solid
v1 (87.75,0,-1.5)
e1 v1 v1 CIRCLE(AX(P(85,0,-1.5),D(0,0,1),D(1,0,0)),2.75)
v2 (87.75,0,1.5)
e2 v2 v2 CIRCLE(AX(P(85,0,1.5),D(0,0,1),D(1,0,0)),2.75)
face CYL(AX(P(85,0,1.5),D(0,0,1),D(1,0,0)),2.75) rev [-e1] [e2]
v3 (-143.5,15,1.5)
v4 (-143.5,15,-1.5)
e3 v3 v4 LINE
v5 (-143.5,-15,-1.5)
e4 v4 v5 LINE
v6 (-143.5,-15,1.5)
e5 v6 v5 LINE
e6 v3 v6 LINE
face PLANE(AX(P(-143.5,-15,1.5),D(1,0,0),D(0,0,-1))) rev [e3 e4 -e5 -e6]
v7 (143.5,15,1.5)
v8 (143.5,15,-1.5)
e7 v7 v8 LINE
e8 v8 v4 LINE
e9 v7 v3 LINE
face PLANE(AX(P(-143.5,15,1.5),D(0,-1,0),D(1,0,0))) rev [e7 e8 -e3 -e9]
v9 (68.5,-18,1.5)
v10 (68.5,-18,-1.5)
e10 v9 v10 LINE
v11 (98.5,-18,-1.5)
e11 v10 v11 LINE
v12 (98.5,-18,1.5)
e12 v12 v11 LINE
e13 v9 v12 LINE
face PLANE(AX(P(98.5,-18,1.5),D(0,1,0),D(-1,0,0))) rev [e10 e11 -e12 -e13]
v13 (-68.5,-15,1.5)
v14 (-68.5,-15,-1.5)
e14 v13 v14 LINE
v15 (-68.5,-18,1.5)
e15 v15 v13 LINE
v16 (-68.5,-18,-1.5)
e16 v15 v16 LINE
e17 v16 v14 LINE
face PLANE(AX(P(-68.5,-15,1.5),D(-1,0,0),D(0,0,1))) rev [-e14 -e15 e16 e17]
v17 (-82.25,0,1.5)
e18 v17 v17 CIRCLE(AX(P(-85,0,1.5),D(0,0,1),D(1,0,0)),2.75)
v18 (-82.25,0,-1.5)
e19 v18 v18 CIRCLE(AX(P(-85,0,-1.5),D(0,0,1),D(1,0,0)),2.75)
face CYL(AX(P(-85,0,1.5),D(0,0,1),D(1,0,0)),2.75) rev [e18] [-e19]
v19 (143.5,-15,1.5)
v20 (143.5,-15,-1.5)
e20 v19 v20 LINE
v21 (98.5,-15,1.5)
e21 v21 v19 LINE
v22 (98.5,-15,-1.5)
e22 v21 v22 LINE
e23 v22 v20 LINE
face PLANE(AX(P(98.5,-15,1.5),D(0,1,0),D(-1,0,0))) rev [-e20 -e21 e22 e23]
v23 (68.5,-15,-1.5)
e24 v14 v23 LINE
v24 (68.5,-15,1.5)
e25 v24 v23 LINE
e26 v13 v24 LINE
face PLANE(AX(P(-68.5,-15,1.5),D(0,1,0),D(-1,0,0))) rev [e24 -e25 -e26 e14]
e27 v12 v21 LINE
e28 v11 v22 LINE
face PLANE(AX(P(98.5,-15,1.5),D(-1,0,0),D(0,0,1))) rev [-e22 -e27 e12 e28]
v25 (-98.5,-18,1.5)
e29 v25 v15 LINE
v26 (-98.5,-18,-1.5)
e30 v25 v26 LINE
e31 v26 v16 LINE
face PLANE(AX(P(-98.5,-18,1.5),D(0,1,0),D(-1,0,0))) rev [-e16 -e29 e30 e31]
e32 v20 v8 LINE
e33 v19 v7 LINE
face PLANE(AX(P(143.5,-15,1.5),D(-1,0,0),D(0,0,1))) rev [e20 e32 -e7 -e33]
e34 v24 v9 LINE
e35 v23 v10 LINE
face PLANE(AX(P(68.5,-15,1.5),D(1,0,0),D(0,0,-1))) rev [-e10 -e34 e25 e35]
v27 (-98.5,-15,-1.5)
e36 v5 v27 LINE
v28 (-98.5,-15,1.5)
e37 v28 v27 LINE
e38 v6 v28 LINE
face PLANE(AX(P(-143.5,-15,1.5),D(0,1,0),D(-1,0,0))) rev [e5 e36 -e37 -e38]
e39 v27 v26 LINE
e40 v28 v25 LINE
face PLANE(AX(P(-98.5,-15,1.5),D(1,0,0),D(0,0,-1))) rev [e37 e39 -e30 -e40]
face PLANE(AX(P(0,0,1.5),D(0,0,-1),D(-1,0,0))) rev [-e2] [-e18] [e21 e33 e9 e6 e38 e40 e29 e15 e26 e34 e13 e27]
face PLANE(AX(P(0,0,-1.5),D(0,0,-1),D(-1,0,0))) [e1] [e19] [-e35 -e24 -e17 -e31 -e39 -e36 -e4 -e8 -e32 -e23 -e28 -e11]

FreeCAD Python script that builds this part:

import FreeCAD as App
import Part
import Sketcher
from FreeCAD import Vector
Q = App.Units.Quantity

doc = App.newDocument("Part")
body = doc.addObject("PartDesign::Body", "Body")

# Sketch on XY plane
sketch1 = doc.addObject("Sketcher::SketchObject", "Sketch")
body.addObject(sketch1)
sketch1.AttachmentSupport = (doc.XY_Plane, [""])
sketch1.MapMode = "FlatFace"
sketch1.addGeometry([
    Part.LineSegment(Vector(-143.5, -15, 0), Vector(-98.5, -15, 0)),  # 0
    Part.LineSegment(Vector(-98.5, -15, 0), Vector(-98.5, -18, 0)),  # 1
    Part.LineSegment(Vector(-98.5, -18, 0), Vector(-68.5, -18, 0)),  # 2
    Part.LineSegment(Vector(-68.5, -18, 0), Vector(-68.5, -15, 0)),  # 3
    Part.LineSegment(Vector(-68.5, -15, 0), Vector(68.5, -15, 0)),  # 4
    Part.LineSegment(Vector(68.5, -15, 0), Vector(68.5, -18, 0)),  # 5
    Part.LineSegment(Vector(68.5, -18, 0), Vector(98.5, -18, 0)),  # 6
    Part.LineSegment(Vector(98.5, -18, 0), Vector(98.5, -15, 0)),  # 7
    Part.LineSegment(Vector(98.5, -15, 0), Vector(143.5, -15, 0)),  # 8
    Part.LineSegment(Vector(143.5, -15, 0), Vector(143.5, 15, 0)),  # 9
    Part.LineSegment(Vector(143.5, 15, 0), Vector(-143.5, 15, 0)),  # 10
    Part.LineSegment(Vector(-143.5, 15, 0), Vector(-143.5, -15, 0)),  # 11
], False)
sketch1.addConstraint([
    Sketcher.Constraint("Coincident", 0, 2, 1, 1),
    Sketcher.Constraint("Coincident", 1, 2, 2, 1),
    Sketcher.Constraint("Coincident", 2, 2, 3, 1),
    Sketcher.Constraint("Coincident", 3, 2, 4, 1),
    Sketcher.Constraint("Coincident", 4, 2, 5, 1),
    Sketcher.Constraint("Coincident", 5, 2, 6, 1),
    Sketcher.Constraint("Coincident", 6, 2, 7, 1),
    Sketcher.Constraint("Coincident", 7, 2, 8, 1),
    Sketcher.Constraint("Coincident", 8, 2, 9, 1),
    Sketcher.Constraint("Coincident", 9, 2, 10, 1),
    Sketcher.Constraint("Coincident", 10, 2, 11, 1),
    Sketcher.Constraint("Coincident", 11, 2, 0, 1),
    Sketcher.Constraint("Horizontal", 0),
    Sketcher.Constraint("Vertical", 1),
    Sketcher.Constraint("Horizontal", 2),
    Sketcher.Constraint("Vertical", 3),
    Sketcher.Constraint("Horizontal", 4),
    Sketcher.Constraint("Vertical", 5),
    Sketcher.Constraint("Horizontal", 6),
    Sketcher.Constraint("Vertical", 7),
    Sketcher.Constraint("Horizontal", 8),
    Sketcher.Constraint("Vertical", 9),
    Sketcher.Constraint("Horizontal", 10),
    Sketcher.Constraint("Vertical", 11),
    Sketcher.Constraint("Symmetric", 8, 2, 10, 2, -1, 1),
    Sketcher.Constraint("Symmetric", 2, 2, 5, 2, -2),
    Sketcher.Constraint("Symmetric", 0, 2, 7, 2, -2),
    Sketcher.Constraint("Horizontal", 0, 2, 3, 2),
    Sketcher.Constraint("Equal", 6, 9),
    Sketcher.Constraint("DistanceX", 0, 1, 0, 2, Q("45 mm")),
    Sketcher.Constraint("DistanceX", 2, 1, 2, 2, Q("30 mm")),
    Sketcher.Constraint("DistanceX", 4, 1, 4, 2, Q("137 mm")),
    Sketcher.Constraint("DistanceY", 1, 2, 1, 1, Q("3 mm")),
])
pad1 = doc.addObject("PartDesign::Pad", "Pad")
body.addObject(pad1)
pad1.Profile = sketch1
pad1.Length = 3
pad1.Midplane = True

# Sketch on XY plane
sketch2 = doc.addObject("Sketcher::SketchObject", "Sketch001")
body.addObject(sketch2)
sketch2.AttachmentSupport = (doc.XY_Plane, [""])
sketch2.MapMode = "FlatFace"
sketch2.AttachmentOffset = App.Placement(Vector(0, 0, 1.5), App.Rotation())
sketch2.addGeometry([
    Part.Circle(Vector(-85, 0, 0), Vector(0, 0, 1), 2.75),
    Part.Circle(Vector(85, 0, 0), Vector(0, 0, 1), 2.75),
], False)
sketch2.addConstraint([
    Sketcher.Constraint("Equal", 0, 1),
    Sketcher.Constraint("Symmetric", 0, 3, 1, 3, -1, 1),
    Sketcher.Constraint("PointOnObject", 0, 3, -1),
    Sketcher.Constraint("Diameter", 0, Q("5.5 mm")),
    Sketcher.Constraint("DistanceX", 0, 3, -1, 1, Q("85 mm")),
])
doc.recompute()
hole = doc.addObject("PartDesign::Hole", "Hole")
body.addObject(hole)
hole.Profile = sketch2
hole.ThreadType = "None"
hole.Diameter = 5.5
hole.DepthType = "ThroughAll"

doc.recompute()
